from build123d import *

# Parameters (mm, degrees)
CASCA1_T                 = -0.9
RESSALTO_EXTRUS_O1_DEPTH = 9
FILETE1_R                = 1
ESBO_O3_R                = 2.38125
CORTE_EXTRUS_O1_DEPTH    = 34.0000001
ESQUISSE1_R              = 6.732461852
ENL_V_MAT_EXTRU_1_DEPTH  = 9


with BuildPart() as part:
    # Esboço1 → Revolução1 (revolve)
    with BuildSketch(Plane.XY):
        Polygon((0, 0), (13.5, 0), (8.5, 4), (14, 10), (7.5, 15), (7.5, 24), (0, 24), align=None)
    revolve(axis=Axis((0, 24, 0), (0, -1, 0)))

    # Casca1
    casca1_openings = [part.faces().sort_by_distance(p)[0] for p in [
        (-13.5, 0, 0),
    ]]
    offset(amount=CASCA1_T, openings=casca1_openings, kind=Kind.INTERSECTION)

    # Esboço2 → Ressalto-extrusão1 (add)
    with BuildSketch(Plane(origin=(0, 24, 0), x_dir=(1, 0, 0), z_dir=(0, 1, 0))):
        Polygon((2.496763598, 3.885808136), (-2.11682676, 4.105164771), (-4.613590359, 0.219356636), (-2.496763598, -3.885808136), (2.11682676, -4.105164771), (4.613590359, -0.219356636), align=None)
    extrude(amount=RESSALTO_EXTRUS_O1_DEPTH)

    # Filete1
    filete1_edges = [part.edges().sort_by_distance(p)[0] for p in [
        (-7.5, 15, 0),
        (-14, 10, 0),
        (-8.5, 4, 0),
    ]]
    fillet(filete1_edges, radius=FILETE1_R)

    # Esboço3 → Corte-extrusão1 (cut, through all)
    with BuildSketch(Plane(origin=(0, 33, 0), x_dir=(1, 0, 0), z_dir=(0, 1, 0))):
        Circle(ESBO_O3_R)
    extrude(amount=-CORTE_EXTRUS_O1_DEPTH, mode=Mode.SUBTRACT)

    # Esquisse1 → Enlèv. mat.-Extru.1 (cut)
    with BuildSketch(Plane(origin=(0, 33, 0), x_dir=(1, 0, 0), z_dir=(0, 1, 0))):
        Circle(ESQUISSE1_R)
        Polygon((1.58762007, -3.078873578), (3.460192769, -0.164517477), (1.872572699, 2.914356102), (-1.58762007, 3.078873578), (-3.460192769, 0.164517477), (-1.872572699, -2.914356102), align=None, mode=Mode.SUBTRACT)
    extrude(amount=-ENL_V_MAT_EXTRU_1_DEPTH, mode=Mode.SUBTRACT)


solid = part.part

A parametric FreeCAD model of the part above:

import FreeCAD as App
import Part
import Sketcher


def edges_at(feature, points):
    """Names of the edges that pass closest to the given points."""
    edges = feature.Shape.Edges
    near = lambda p: min(range(len(edges)), key=lambda i: edges[i].distToShape(Part.Vertex(*p))[0])
    return sorted({f"Edge{near(p) + 1}" for p in points})


def faces_at(feature, points):
    """Names of the faces that lie closest to the given points."""
    faces = feature.Shape.Faces
    near = lambda p: min(range(len(faces)), key=lambda i: faces[i].distToShape(Part.Vertex(*p))[0])
    return sorted({f"Face{near(p) + 1}" for p in points})

doc = App.newDocument("Part")
body = doc.addObject("PartDesign::Body", "Body")

# Sketch on XY plane
sketch1 = doc.addObject("Sketcher::SketchObject", "Sketch")
body.addObject(sketch1)
sketch1.AttachmentSupport = (doc.XY_Plane, [""])
sketch1.MapMode = "FlatFace"
sketch1.addGeometry([
    Part.LineSegment(App.Vector(0, 0, 0), App.Vector(14, 0, 0)),  # 0
    Part.LineSegment(App.Vector(14, 0, 0), App.Vector(8, 4, 0)),  # 1
    Part.LineSegment(App.Vector(8, 4, 0), App.Vector(14, 10, 0)),  # 2
    Part.LineSegment(App.Vector(14, 10, 0), App.Vector(8, 15, 0)),  # 3
    Part.LineSegment(App.Vector(8, 15, 0), App.Vector(8, 24, 0)),  # 4
    Part.LineSegment(App.Vector(8, 24, 0), App.Vector(0, 24, 0)),  # 5
    Part.LineSegment(App.Vector(0, 24, 0), App.Vector(0, 0, 0)),  # 6
], False)
sketch1.addConstraint([
    Sketcher.Constraint("Coincident", 0, 2, 1, 1),
    Sketcher.Constraint("Coincident", 1, 2, 2, 1),
    Sketcher.Constraint("Coincident", 2, 2, 3, 1),
    Sketcher.Constraint("Coincident", 3, 2, 4, 1),
    Sketcher.Constraint("Coincident", 4, 2, 5, 1),
    Sketcher.Constraint("Coincident", 5, 2, 6, 1),
    Sketcher.Constraint("Coincident", 6, 2, 0, 1),
    Sketcher.Constraint("Horizontal", 0),
    Sketcher.Constraint("Vertical", 4),
    Sketcher.Constraint("Horizontal", 5),
    Sketcher.Constraint("Vertical", 6),
    Sketcher.Constraint("Coincident", 6, 2, -1, 1),
    Sketcher.Constraint("DistanceY", 4, 1, 4, 2, 9.0),
    Sketcher.Constraint("DistanceY", 6, 2, 6, 1, 24.0),
    Sketcher.Constraint("DistanceX", 0, 1, 0, 2, 13.5),
    Sketcher.Constraint("DistanceX", 5, 2, 5, 1, 7.5),
    Sketcher.Constraint("DistanceY", -1, 1, 1, 2, 4.0),
    Sketcher.Constraint("DistanceX", -1, 1, 2, 2, 14.0),
    Sketcher.Constraint("DistanceY", -1, 1, 2, 2, 10.0),
    Sketcher.Constraint("DistanceX", 1, 2, 0, 2, 5.0),
])
revolution = doc.addObject("PartDesign::Revolution", "Revolution")
body.addObject(revolution)
revolution.Profile = sketch1
revolution.ReferenceAxis = (sketch1, ["V_Axis"])
revolution.Angle = 360
doc.recompute()

thickness = doc.addObject("PartDesign::Thickness", "Thickness")
body.addObject(thickness)
thickness.Base = (revolution, faces_at(revolution, [(0, 0, 0)]))
thickness.Value = 0.9
thickness.Reversed = True
thickness.Join = "Intersection"

# Sketch on XZ plane
sketch2 = doc.addObject("Sketcher::SketchObject", "Sketch001")
body.addObject(sketch2)
sketch2.AttachmentSupport = (doc.XZ_Plane, [""])
sketch2.MapMode = "FlatFace"
sketch2.AttachmentOffset = App.Placement(App.Vector(0, 0, -24), App.Rotation())
sketch2.addGeometry([
    Part.LineSegment(App.Vector(2.5, -3.9, 0), App.Vector(-2.1, -4.1, 0)),  # 0
    Part.LineSegment(App.Vector(-2.1, -4.1, 0), App.Vector(-4.6, -0.2, 0)),  # 1
    Part.LineSegment(App.Vector(-4.6, -0.2, 0), App.Vector(-2.5, 3.9, 0)),  # 2
    Part.LineSegment(App.Vector(-2.5, 3.9, 0), App.Vector(2.1, 4.1, 0)),  # 3
    Part.LineSegment(App.Vector(2.1, 4.1, 0), App.Vector(4.6, 0.2, 0)),  # 4
    Part.LineSegment(App.Vector(4.6, 0.2, 0), App.Vector(2.5, -3.9, 0)),  # 5
], False)
sketch2.addConstraint([
    Sketcher.Constraint("Coincident", 0, 2, 1, 1),
    Sketcher.Constraint("Coincident", 1, 2, 2, 1),
    Sketcher.Constraint("Coincident", 2, 2, 3, 1),
    Sketcher.Constraint("Coincident", 3, 2, 4, 1),
    Sketcher.Constraint("Coincident", 4, 2, 5, 1),
    Sketcher.Constraint("Coincident", 5, 2, 0, 1),
    Sketcher.Constraint("Symmetric", 0, 2, 3, 2, -1, 1),
    Sketcher.Constraint("Symmetric", 1, 2, 4, 2, -1, 1),
    Sketcher.Constraint("Symmetric", 2, 2, 5, 2, -1, 1),
    Sketcher.Constraint("Equal", 0, 1),
    Sketcher.Constraint("Equal", 1, 2),
    Sketcher.Constraint("DistanceX", 1, 2, -1, 1, 4.61359),
    Sketcher.Constraint("DistanceY", -1, 1, 2, 2, 3.885808),
    Sketcher.Constraint("DistanceY", 0, 2, 1, 2, 3.885808),
    Sketcher.Constraint("DistanceX", 2, 2, 3, 2, 4.61359),
])
pad1 = doc.addObject("PartDesign::Pad", "Pad")
body.addObject(pad1)
pad1.Profile = sketch2
pad1.Length = 9
pad1.Reversed = True
doc.recompute()

fillet = doc.addObject("PartDesign::Fillet", "Fillet")
body.addObject(fillet)
fillet.Base = (pad1, edges_at(pad1, [(-7.5, 15, 0), (-14, 10, 0), (-8.5, 4, 0)]))
fillet.Radius = 1

# Sketch on XZ plane
sketch3 = doc.addObject("Sketcher::SketchObject", "Sketch002")
body.addObject(sketch3)
sketch3.AttachmentSupport = (doc.XZ_Plane, [""])
sketch3.MapMode = "FlatFace"
sketch3.AttachmentOffset = App.Placement(App.Vector(0, 0, -33), App.Rotation())
sketch3.addGeometry(Part.Circle(App.Vector(0, 0, 0), App.Vector(0, 0, 1), 2.4), False)
sketch3.addConstraint([
    Sketcher.Constraint("Coincident", 0, 3, -1, 1),
    Sketcher.Constraint("Diameter", 0, 4.7625),
])
pocket1 = doc.addObject("PartDesign::Pocket", "Pocket")
body.addObject(pocket1)
pocket1.Profile = sketch3
pocket1.Type = "ThroughAll"
pocket1.Reversed = True

# Sketch on XZ plane
sketch4 = doc.addObject("Sketcher::SketchObject", "Sketch003")
body.addObject(sketch4)
sketch4.AttachmentSupport = (doc.XZ_Plane, [""])
sketch4.MapMode = "FlatFace"
sketch4.AttachmentOffset = App.Placement(App.Vector(0, 0, -33), App.Rotation())
sketch4.addGeometry([
    Part.Circle(App.Vector(0, 0, 0), App.Vector(0, 0, 1), 6.7),  # 0
    Part.LineSegment(App.Vector(3.5, 0.2, 0), App.Vector(1.6, 3.1, 0)),  # 1
    Part.LineSegment(App.Vector(1.6, 3.1, 0), App.Vector(-1.9, 2.9, 0)),  # 2
    Part.LineSegment(App.Vector(-1.9, 2.9, 0), App.Vector(-3.5, -0.2, 0)),  # 3
    Part.LineSegment(App.Vector(-3.5, -0.2, 0), App.Vector(-1.6, -3.1, 0)),  # 4
    Part.LineSegment(App.Vector(-1.6, -3.1, 0), App.Vector(1.9, -2.9, 0)),  # 5
    Part.LineSegment(App.Vector(1.9, -2.9, 0), App.Vector(3.5, 0.2, 0)),  # 6
], False)
sketch4.addConstraint([
    Sketcher.Constraint("Coincident", 1, 2, 2, 1),
    Sketcher.Constraint("Coincident", 2, 2, 3, 1),
    Sketcher.Constraint("Coincident", 3, 2, 4, 1),
    Sketcher.Constraint("Coincident", 4, 2, 5, 1),
    Sketcher.Constraint("Coincident", 5, 2, 6, 1),
    Sketcher.Constraint("Coincident", 6, 2, 1, 1),
    Sketcher.Constraint("Coincident", 0, 3, -1, 1),
    Sketcher.Constraint("Symmetric", 1, 2, 4, 2, -1, 1),
    Sketcher.Constraint("Symmetric", 2, 2, 5, 2, -1, 1),
    Sketcher.Constraint("Symmetric", 3, 2, 6, 2, -1, 1),
    Sketcher.Constraint("Equal", 1, 2),
    Sketcher.Constraint("Equal", 2, 3),
    Sketcher.Constraint("Diameter", 0, 13.464924),
    Sketcher.Constraint("Distance", 1, 3.464102),
    Sketcher.Constraint("DistanceX", -1, 1, 1, 2, 1.58762),
    Sketcher.Constraint("DistanceX", 3, 2, 2, 2, 1.58762),
    Sketcher.Constraint("DistanceY", 3, 2, 1, 2, 3.243391),
])
pocket2 = doc.addObject("PartDesign::Pocket", "Pocket001")
body.addObject(pocket2)
pocket2.Profile = sketch4
pocket2.Length = 9
pocket2.Reversed = True

doc.recompute()
